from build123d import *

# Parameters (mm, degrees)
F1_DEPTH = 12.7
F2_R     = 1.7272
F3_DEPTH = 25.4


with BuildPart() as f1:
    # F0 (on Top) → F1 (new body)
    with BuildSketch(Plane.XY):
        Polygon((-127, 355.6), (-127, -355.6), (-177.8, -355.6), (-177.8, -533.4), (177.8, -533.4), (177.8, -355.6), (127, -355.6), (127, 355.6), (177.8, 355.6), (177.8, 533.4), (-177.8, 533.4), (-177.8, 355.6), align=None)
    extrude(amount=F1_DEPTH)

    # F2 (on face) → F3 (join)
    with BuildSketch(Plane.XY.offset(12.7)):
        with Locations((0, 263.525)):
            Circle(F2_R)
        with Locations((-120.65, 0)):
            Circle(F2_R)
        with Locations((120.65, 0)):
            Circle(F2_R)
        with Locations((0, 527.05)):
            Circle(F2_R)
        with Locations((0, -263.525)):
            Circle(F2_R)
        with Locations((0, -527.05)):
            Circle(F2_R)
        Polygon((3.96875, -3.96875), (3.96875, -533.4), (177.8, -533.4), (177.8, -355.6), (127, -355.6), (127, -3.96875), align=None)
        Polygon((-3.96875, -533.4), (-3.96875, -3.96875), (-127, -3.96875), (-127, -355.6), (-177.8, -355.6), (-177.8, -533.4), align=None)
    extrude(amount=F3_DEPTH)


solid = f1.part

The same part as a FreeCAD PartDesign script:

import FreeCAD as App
import Part
import Sketcher
Q = App.Units.Quantity

doc = App.newDocument("Part")
params = doc.addObject("Spreadsheet::Sheet", "Params")
for row, (alias, value) in enumerate([
    ("sketch1_width", "2 in"),
    ("sketch1_width2", "14 in"),
    ("sketch1_height", "28 in"),
    ("sketch1_height2", "7 in"),
    ("pad1_length", "0.5 in"),
    ("sketch2_width", "2 in"),
    ("sketch2_height", "7 in"),
    ("sketch2_diameter", "0.136 in"),
    ("sketch2_width2", "6.84375 in"),
    ("sketch2_height2", "20.84375 in"),
    ("pad2_length", "1 in"),
], start=1):
    params.set(f"A{row}", alias)
    params.set(f"B{row}", "=" + value)
    params.setAlias(f"B{row}", alias)

body = doc.addObject("PartDesign::Body", "Body")

# Sketch on XY plane
sketch1 = body.newObject("Sketcher::SketchObject", "Sketch")
sketch1.AttachmentSupport = (doc.getObject("XY_Plane"), [""])
sketch1.MapMode = "FlatFace"
sketch1.addGeometry(Part.LineSegment(App.Vector(-127, 356, 0), App.Vector(-127, -356, 0)), False)
sketch1.addGeometry(Part.LineSegment(App.Vector(-127, -356, 0), App.Vector(-178, -356, 0)), False)
sketch1.addGeometry(Part.LineSegment(App.Vector(-178, -356, 0), App.Vector(-178, -533, 0)), False)
sketch1.addGeometry(Part.LineSegment(App.Vector(-178, -533, 0), App.Vector(178, -533, 0)), False)
sketch1.addGeometry(Part.LineSegment(App.Vector(178, -533, 0), App.Vector(178, -356, 0)), False)
sketch1.addGeometry(Part.LineSegment(App.Vector(178, -356, 0), App.Vector(127, -356, 0)), False)
sketch1.addGeometry(Part.LineSegment(App.Vector(127, -356, 0), App.Vector(127, 356, 0)), False)
sketch1.addGeometry(Part.LineSegment(App.Vector(127, 356, 0), App.Vector(178, 356, 0)), False)
sketch1.addGeometry(Part.LineSegment(App.Vector(178, 356, 0), App.Vector(178, 533, 0)), False)
sketch1.addGeometry(Part.LineSegment(App.Vector(178, 533, 0), App.Vector(-178, 533, 0)), False)
sketch1.addGeometry(Part.LineSegment(App.Vector(-178, 533, 0), App.Vector(-178, 356, 0)), False)
sketch1.addGeometry(Part.LineSegment(App.Vector(-178, 356, 0), App.Vector(-127, 356, 0)), False)
sketch1.addConstraint(Sketcher.Constraint("Coincident", 0, 2, 1, 1))
sketch1.addConstraint(Sketcher.Constraint("Coincident", 1, 2, 2, 1))
sketch1.addConstraint(Sketcher.Constraint("Coincident", 2, 2, 3, 1))
sketch1.addConstraint(Sketcher.Constraint("Coincident", 3, 2, 4, 1))
sketch1.addConstraint(Sketcher.Constraint("Coincident", 4, 2, 5, 1))
sketch1.addConstraint(Sketcher.Constraint("Coincident", 5, 2, 6, 1))
sketch1.addConstraint(Sketcher.Constraint("Coincident", 6, 2, 7, 1))
sketch1.addConstraint(Sketcher.Constraint("Coincident", 7, 2, 8, 1))
sketch1.addConstraint(Sketcher.Constraint("Coincident", 8, 2, 9, 1))
sketch1.addConstraint(Sketcher.Constraint("Coincident", 9, 2, 10, 1))
sketch1.addConstraint(Sketcher.Constraint("Coincident", 10, 2, 11, 1))
sketch1.addConstraint(Sketcher.Constraint("Coincident", 11, 2, 0, 1))
sketch1.addConstraint(Sketcher.Constraint("Vertical", 0))
sketch1.addConstraint(Sketcher.Constraint("Horizontal", 1))
sketch1.addConstraint(Sketcher.Constraint("Vertical", 2))
sketch1.addConstraint(Sketcher.Constraint("Horizontal", 3))
sketch1.addConstraint(Sketcher.Constraint("Vertical", 4))
sketch1.addConstraint(Sketcher.Constraint("Horizontal", 5))
sketch1.addConstraint(Sketcher.Constraint("Vertical", 6))
sketch1.addConstraint(Sketcher.Constraint("Horizontal", 7))
sketch1.addConstraint(Sketcher.Constraint("Vertical", 8))
sketch1.addConstraint(Sketcher.Constraint("Horizontal", 9))
sketch1.addConstraint(Sketcher.Constraint("Vertical", 10))
sketch1.addConstraint(Sketcher.Constraint("Horizontal", 11))
sketch1.addConstraint(Sketcher.Constraint("Symmetric", 0, 2, 6, 2, -1, 1))
sketch1.addConstraint(Sketcher.Constraint("Symmetric", 2, 2, 8, 2, -1, 1))
sketch1.addConstraint(Sketcher.Constraint("Symmetric", 4, 2, 10, 2, -1, 1))
sketch1.addConstraint(Sketcher.Constraint("Symmetric", 1, 2, 4, 2, -2))
sketch1.addConstraint(Sketcher.Constraint("DistanceX", 1, 2, 1, 1, Q("2 in")))
sketch1.addConstraint(Sketcher.Constraint("DistanceX", 3, 1, 3, 2, Q("14 in")))
sketch1.addConstraint(Sketcher.Constraint("DistanceY", 0, 2, 0, 1, Q("28 in")))
sketch1.addConstraint(Sketcher.Constraint("DistanceY", 2, 2, 2, 1, Q("7 in")))
sketch1.setExpression("Constraints[28]", "Params.sketch1_width")
sketch1.setExpression("Constraints[29]", "Params.sketch1_width2")
sketch1.setExpression("Constraints[30]", "Params.sketch1_height")
sketch1.setExpression("Constraints[31]", "Params.sketch1_height2")
pad1 = body.newObject("PartDesign::Pad", "Pad")
pad1.Profile = sketch1
pad1.setExpression("Length", "Params.pad1_length")

# Sketch on XY plane
sketch2 = body.newObject("Sketcher::SketchObject", "Sketch001")
sketch2.AttachmentSupport = (doc.getObject("XY_Plane"), [""])
sketch2.MapMode = "FlatFace"
sketch2.AttachmentOffset = App.Placement(App.Vector(0, 0, 0.5 * 25.4), App.Rotation())
sketch2.addGeometry(Part.Circle(App.Vector(0, 263.5, 0), App.Vector(0, 0, 1), 1.7), False)
sketch2.addGeometry(Part.Circle(App.Vector(-120.7, 0, 0), App.Vector(0, 0, 1), 1.7), False)
sketch2.addGeometry(Part.Circle(App.Vector(120.7, 0, 0), App.Vector(0, 0, 1), 1.7), False)
sketch2.addGeometry(Part.Circle(App.Vector(0, 527, 0), App.Vector(0, 0, 1), 1.7), False)
sketch2.addGeometry(Part.Circle(App.Vector(0, -263.5, 0), App.Vector(0, 0, 1), 1.7), False)
sketch2.addGeometry(Part.Circle(App.Vector(0, -527, 0), App.Vector(0, 0, 1), 1.7), False)
sketch2.addGeometry(Part.LineSegment(App.Vector(4, -4, 0), App.Vector(4, -533.4, 0)), False)
sketch2.addGeometry(Part.LineSegment(App.Vector(4, -533.4, 0), App.Vector(177.8, -533.4, 0)), False)
sketch2.addGeometry(Part.LineSegment(App.Vector(177.8, -533.4, 0), App.Vector(177.8, -355.6, 0)), False)
sketch2.addGeometry(Part.LineSegment(App.Vector(177.8, -355.6, 0), App.Vector(127, -355.6, 0)), False)
sketch2.addGeometry(Part.LineSegment(App.Vector(127, -355.6, 0), App.Vector(127, -4, 0)), False)
sketch2.addGeometry(Part.LineSegment(App.Vector(127, -4, 0), App.Vector(4, -4, 0)), False)
sketch2.addGeometry(Part.LineSegment(App.Vector(-4, -533.4, 0), App.Vector(-4, -4, 0)), False)
sketch2.addGeometry(Part.LineSegment(App.Vector(-4, -4, 0), App.Vector(-127, -4, 0)), False)
sketch2.addGeometry(Part.LineSegment(App.Vector(-127, -4, 0), App.Vector(-127, -355.6, 0)), False)
sketch2.addGeometry(Part.LineSegment(App.Vector(-127, -355.6, 0), App.Vector(-177.8, -355.6, 0)), False)
sketch2.addGeometry(Part.LineSegment(App.Vector(-177.8, -355.6, 0), App.Vector(-177.8, -533.4, 0)), False)
sketch2.addGeometry(Part.LineSegment(App.Vector(-177.8, -533.4, 0), App.Vector(-4, -533.4, 0)), False)
sketch2.addConstraint(Sketcher.Constraint("Coincident", 6, 2, 7, 1))
sketch2.addConstraint(Sketcher.Constraint("Coincident", 7, 2, 8, 1))
sketch2.addConstraint(Sketcher.Constraint("Coincident", 8, 2, 9, 1))
sketch2.addConstraint(Sketcher.Constraint("Coincident", 9, 2, 10, 1))
sketch2.addConstraint(Sketcher.Constraint("Coincident", 10, 2, 11, 1))
sketch2.addConstraint(Sketcher.Constraint("Coincident", 11, 2, 6, 1))
sketch2.addConstraint(Sketcher.Constraint("Coincident", 12, 2, 13, 1))
sketch2.addConstraint(Sketcher.Constraint("Coincident", 13, 2, 14, 1))
sketch2.addConstraint(Sketcher.Constraint("Coincident", 14, 2, 15, 1))
sketch2.addConstraint(Sketcher.Constraint("Coincident", 15, 2, 16, 1))
sketch2.addConstraint(Sketcher.Constraint("Coincident", 16, 2, 17, 1))
sketch2.addConstraint(Sketcher.Constraint("Coincident", 17, 2, 12, 1))
sketch2.addConstraint(Sketcher.Constraint("Vertical", 6))
sketch2.addConstraint(Sketcher.Constraint("Horizontal", 7))
sketch2.addConstraint(Sketcher.Constraint("Vertical", 8))
sketch2.addConstraint(Sketcher.Constraint("Horizontal", 9))
sketch2.addConstraint(Sketcher.Constraint("Vertical", 10))
sketch2.addConstraint(Sketcher.Constraint("Horizontal", 11))
sketch2.addConstraint(Sketcher.Constraint("Vertical", 12))
sketch2.addConstraint(Sketcher.Constraint("Horizontal", 13))
sketch2.addConstraint(Sketcher.Constraint("Vertical", 14))
sketch2.addConstraint(Sketcher.Constraint("Horizontal", 15))
sketch2.addConstraint(Sketcher.Constraint("Vertical", 16))
sketch2.addConstraint(Sketcher.Constraint("Horizontal", 17))
sketch2.addConstraint(Sketcher.Constraint("Equal", 0, 1))
sketch2.addConstraint(Sketcher.Constraint("Equal", 1, 2))
sketch2.addConstraint(Sketcher.Constraint("Equal", 2, 3))
sketch2.addConstraint(Sketcher.Constraint("Equal", 3, 4))
sketch2.addConstraint(Sketcher.Constraint("Equal", 4, 5))
sketch2.addConstraint(Sketcher.Constraint("Symmetric", 1, 3, 2, 3, -1, 1))
sketch2.addConstraint(Sketcher.Constraint("Symmetric", 0, 3, 4, 3, -1, 1))
sketch2.addConstraint(Sketcher.Constraint("Symmetric", 3, 3, 5, 3, -1, 1))
sketch2.addConstraint(Sketcher.Constraint("Symmetric", 11, 2, 12, 2, -2))
sketch2.addConstraint(Sketcher.Constraint("Symmetric", 9, 2, 14, 2, -2))
sketch2.addConstraint(Sketcher.Constraint("Symmetric", 7, 2, 16, 2, -2))
sketch2.addConstraint(Sketcher.Constraint("PointOnObject", 0, 3, -2))
sketch2.addConstraint(Sketcher.Constraint("PointOnObject", 1, 3, -1))
sketch2.addConstraint(Sketcher.Constraint("PointOnObject", 3, 3, -2))
sketch2.addConstraint(Sketcher.Constraint("DistanceX", 9, 2, 9, 1, Q("2 in")))
sketch2.addConstraint(Sketcher.Constraint("DistanceY", 8, 1, 8, 2, Q("7 in")))
sketch2.addConstraint(Sketcher.Constraint("Diameter", 0, Q("0.136 in")))
sketch2.addConstraint(Sketcher.Constraint("DistanceY", 6, 2, -1, 1, Q("21 in")))
sketch2.addConstraint(Sketcher.Constraint("DistanceX", -1, 1, 7, 2, Q("7 in")))
sketch2.addConstraint(Sketcher.Constraint("DistanceX", 1, 3, 2, 3, Q("9.5 in")))
sketch2.addConstraint(Sketcher.Constraint("DistanceY", 5, 3, 3, 3, Q("41.5 in")))
sketch2.addConstraint(Sketcher.Constraint("DistanceX", 7, 1, 7, 2, Q("6.84375 in")))
sketch2.addConstraint(Sketcher.Constraint("DistanceY", 6, 2, 6, 1, Q("20.84375 in")))
sketch2.addConstraint(Sketcher.Constraint("DistanceY", 4, 3, 0, 3, Q("20.75 in")))
sketch2.setExpression("Constraints[38]", "Params.sketch2_width")
sketch2.setExpression("Constraints[39]", "Params.sketch2_height")
sketch2.setExpression("Constraints[40]", "Params.sketch2_diameter")
sketch2.setExpression("Constraints[45]", "Params.sketch2_width2")
sketch2.setExpression("Constraints[46]", "Params.sketch2_height2")
pad2 = body.newObject("PartDesign::Pad", "Pad001")
pad2.Profile = sketch2
pad2.setExpression("Length", "Params.pad2_length")

doc.recompute()
